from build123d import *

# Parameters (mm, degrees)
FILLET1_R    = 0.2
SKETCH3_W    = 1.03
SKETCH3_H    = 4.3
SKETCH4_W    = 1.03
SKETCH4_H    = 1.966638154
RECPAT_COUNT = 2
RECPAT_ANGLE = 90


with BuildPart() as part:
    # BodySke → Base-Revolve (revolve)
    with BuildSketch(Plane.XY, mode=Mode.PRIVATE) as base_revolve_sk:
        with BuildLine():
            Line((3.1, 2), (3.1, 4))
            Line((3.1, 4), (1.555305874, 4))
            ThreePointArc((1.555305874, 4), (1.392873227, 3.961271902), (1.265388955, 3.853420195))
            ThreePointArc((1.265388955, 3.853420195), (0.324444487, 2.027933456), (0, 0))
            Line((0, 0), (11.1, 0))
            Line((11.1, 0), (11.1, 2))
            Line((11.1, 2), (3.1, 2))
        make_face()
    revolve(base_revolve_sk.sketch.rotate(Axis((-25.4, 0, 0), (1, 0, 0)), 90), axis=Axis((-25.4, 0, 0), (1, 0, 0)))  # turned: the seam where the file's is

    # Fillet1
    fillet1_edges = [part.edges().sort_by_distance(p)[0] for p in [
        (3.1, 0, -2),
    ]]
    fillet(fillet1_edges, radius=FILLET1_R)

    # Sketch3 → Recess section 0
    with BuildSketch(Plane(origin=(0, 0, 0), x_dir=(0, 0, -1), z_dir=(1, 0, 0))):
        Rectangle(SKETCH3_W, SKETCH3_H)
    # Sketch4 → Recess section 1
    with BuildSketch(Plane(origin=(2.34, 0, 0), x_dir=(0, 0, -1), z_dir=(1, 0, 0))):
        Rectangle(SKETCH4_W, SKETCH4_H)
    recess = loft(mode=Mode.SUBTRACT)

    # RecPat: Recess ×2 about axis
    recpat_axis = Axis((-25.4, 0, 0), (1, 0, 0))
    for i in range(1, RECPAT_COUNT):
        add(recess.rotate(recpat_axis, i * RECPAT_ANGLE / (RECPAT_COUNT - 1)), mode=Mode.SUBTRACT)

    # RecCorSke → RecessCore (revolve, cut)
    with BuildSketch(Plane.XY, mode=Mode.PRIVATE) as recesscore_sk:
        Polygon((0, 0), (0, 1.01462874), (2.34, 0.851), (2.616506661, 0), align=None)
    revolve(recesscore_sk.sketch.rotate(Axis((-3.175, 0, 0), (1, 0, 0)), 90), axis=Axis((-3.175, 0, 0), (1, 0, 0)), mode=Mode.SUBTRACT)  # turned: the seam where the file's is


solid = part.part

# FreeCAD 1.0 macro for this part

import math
import FreeCAD as App
import Part
import Sketcher

V = App.Vector
Q = App.Units.Quantity


def edges_at(feature, points):
    """Names of the edges that pass closest to the given points."""
    edges = feature.Shape.Edges
    near = lambda p: min(range(len(edges)), key=lambda i: edges[i].distToShape(Part.Vertex(*p))[0])
    return sorted({f"Edge{near(p) + 1}" for p in points})

doc = App.newDocument("Part")
body = doc.addObject("PartDesign::Body", "Body")

# Sketch on XY plane
sketch1 = body.newObject("Sketcher::SketchObject", "Sketch")
sketch1.AttachmentSupport = (doc.getObject("XY_Plane"), [""])
sketch1.MapMode = "FlatFace"
sketch1.addGeometry(Part.LineSegment(V(3.1, 2, 0), V(3.1, 4, 0)), False)
sketch1.addGeometry(Part.LineSegment(V(3.1, 4, 0), V(1.56, 4, 0)), False)
sketch1.addGeometry(Part.ArcOfCircle(Part.Circle(V(1.56, 3.64, 0), V(0, 0, 1), 0.36), math.radians(90), math.radians(144)), False)
sketch1.addGeometry(Part.ArcOfCircle(Part.Circle(V(6.5, 0, 0), V(0, 0, 1), 6.5), math.radians(144), math.radians(180)), False)
sketch1.addGeometry(Part.LineSegment(V(0, 0, 0), V(11.1, 0, 0)), False)
sketch1.addGeometry(Part.LineSegment(V(11.1, 0, 0), V(11.1, 2, 0)), False)
sketch1.addGeometry(Part.LineSegment(V(11.1, 2, 0), V(3.1, 2, 0)), False)
sketch1.addConstraint(Sketcher.Constraint("Coincident", 0, 2, 1, 1))
sketch1.addConstraint(Sketcher.Constraint("Tangent", 1, 2, 2, 1))
sketch1.addConstraint(Sketcher.Constraint("Tangent", 2, 2, 3, 1))
sketch1.addConstraint(Sketcher.Constraint("Coincident", 3, 2, 4, 1))
sketch1.addConstraint(Sketcher.Constraint("Coincident", 4, 2, 5, 1))
sketch1.addConstraint(Sketcher.Constraint("Coincident", 5, 2, 6, 1))
sketch1.addConstraint(Sketcher.Constraint("Coincident", 6, 2, 0, 1))
sketch1.addConstraint(Sketcher.Constraint("Vertical", 0))
sketch1.addConstraint(Sketcher.Constraint("Horizontal", 1))
sketch1.addConstraint(Sketcher.Constraint("Horizontal", 4))
sketch1.addConstraint(Sketcher.Constraint("Vertical", 5))
sketch1.addConstraint(Sketcher.Constraint("Horizontal", 6))
sketch1.addConstraint(Sketcher.Constraint("Coincident", 3, 2, -1, 1))
sketch1.addConstraint(Sketcher.Constraint("PointOnObject", 3, 3, -1))
sketch1.addConstraint(Sketcher.Constraint("Equal", 0, 5))
sketch1.addConstraint(Sketcher.Constraint("Radius", 3, 6.5))
sketch1.addConstraint(Sketcher.Constraint("DistanceX", 6, 2, 6, 1, 8.0))
sketch1.addConstraint(Sketcher.Constraint("DistanceY", 0, 1, 0, 2, 2.0))
sketch1.addConstraint(Sketcher.Constraint("Radius", 2, 0.36))
sketch1.addConstraint(Sketcher.Constraint("DistanceX", 4, 1, 4, 2, 11.1))
revolution = body.newObject("PartDesign::Revolution", "Revolution")
revolution.Profile = sketch1
revolution.ReferenceAxis = (sketch1, ["H_Axis"])
revolution.Angle = 360
doc.recompute()

fillet = body.newObject("PartDesign::Fillet", "Fillet")
fillet.Base = (revolution, edges_at(revolution, [(3.1, 0, -2)]))
fillet.Radius = 0.2

# Sketch on YZ plane
sketch2 = body.newObject("Sketcher::SketchObject", "Sketch001")
sketch2.AttachmentSupport = (doc.getObject("YZ_Plane"), [""])
sketch2.MapMode = "FlatFace"
sketch2.addGeometry(Part.LineSegment(V(2.1, 0.5, 0), V(-2.1, 0.5, 0)), False)
sketch2.addGeometry(Part.LineSegment(V(-2.1, 0.5, 0), V(-2.1, -0.5, 0)), False)
sketch2.addGeometry(Part.LineSegment(V(-2.1, -0.5, 0), V(2.1, -0.5, 0)), False)
sketch2.addGeometry(Part.LineSegment(V(2.1, -0.5, 0), V(2.1, 0.5, 0)), False)
sketch2.addConstraint(Sketcher.Constraint("Coincident", 0, 2, 1, 1))
sketch2.addConstraint(Sketcher.Constraint("Coincident", 1, 2, 2, 1))
sketch2.addConstraint(Sketcher.Constraint("Coincident", 2, 2, 3, 1))
sketch2.addConstraint(Sketcher.Constraint("Coincident", 3, 2, 0, 1))
sketch2.addConstraint(Sketcher.Constraint("Horizontal", 0))
sketch2.addConstraint(Sketcher.Constraint("Vertical", 1))
sketch2.addConstraint(Sketcher.Constraint("Horizontal", 2))
sketch2.addConstraint(Sketcher.Constraint("Vertical", 3))
sketch2.addConstraint(Sketcher.Constraint("Symmetric", 0, 2, 2, 2, -1, 1))
sketch2.addConstraint(Sketcher.Constraint("DistanceX", 0, 2, 0, 1, 4.3))
sketch2.addConstraint(Sketcher.Constraint("DistanceY", 1, 2, 1, 1, 1.03))

# Sketch on YZ plane
sketch3 = body.newObject("Sketcher::SketchObject", "Sketch002")
sketch3.AttachmentSupport = (doc.getObject("YZ_Plane"), [""])
sketch3.MapMode = "FlatFace"
sketch3.AttachmentOffset = App.Placement(V(0, 0, 2.34), App.Rotation())
sketch3.addGeometry(Part.LineSegment(V(1, 0.5, 0), V(-1, 0.5, 0)), False)
sketch3.addGeometry(Part.LineSegment(V(-1, 0.5, 0), V(-1, -0.5, 0)), False)
sketch3.addGeometry(Part.LineSegment(V(-1, -0.5, 0), V(1, -0.5, 0)), False)
sketch3.addGeometry(Part.LineSegment(V(1, -0.5, 0), V(1, 0.5, 0)), False)
sketch3.addConstraint(Sketcher.Constraint("Coincident", 0, 2, 1, 1))
sketch3.addConstraint(Sketcher.Constraint("Coincident", 1, 2, 2, 1))
sketch3.addConstraint(Sketcher.Constraint("Coincident", 2, 2, 3, 1))
sketch3.addConstraint(Sketcher.Constraint("Coincident", 3, 2, 0, 1))
sketch3.addConstraint(Sketcher.Constraint("Horizontal", 0))
sketch3.addConstraint(Sketcher.Constraint("Vertical", 1))
sketch3.addConstraint(Sketcher.Constraint("Horizontal", 2))
sketch3.addConstraint(Sketcher.Constraint("Vertical", 3))
sketch3.addConstraint(Sketcher.Constraint("Symmetric", 0, 2, 2, 2, -1, 1))
sketch3.addConstraint(Sketcher.Constraint("DistanceY", 1, 2, 1, 1, 1.03))
sketch3.addConstraint(Sketcher.Constraint("DistanceX", 0, 2, 0, 1, 1.966638))

subtractiveloft = body.newObject("PartDesign::SubtractiveLoft", "SubtractiveLoft")
subtractiveloft.Profile = sketch2
subtractiveloft.Sections = [sketch3]
doc.recompute()

polarpattern = body.newObject("PartDesign::PolarPattern", "PolarPattern")
polarpattern.Originals = [subtractiveloft]
polarpattern.Axis = (doc.getObject("X_Axis"), [""])
polarpattern.Angle = 90
polarpattern.Occurrences = 2
body.Tip = polarpattern

# Sketch on XY plane
sketch4 = body.newObject("Sketcher::SketchObject", "Sketch003")
sketch4.AttachmentSupport = (doc.getObject("XY_Plane"), [""])
sketch4.MapMode = "FlatFace"
sketch4.addGeometry(Part.LineSegment(V(0, 1, 0), V(0, 0, 0)), False)
sketch4.addGeometry(Part.LineSegment(V(0, 0, 0), V(2.6, 0, 0)), False)
sketch4.addGeometry(Part.LineSegment(V(2.6, 0, 0), V(2.3, 0.9, 0)), False)
sketch4.addGeometry(Part.LineSegment(V(2.3, 0.9, 0), V(0, 1, 0)), False)
sketch4.addConstraint(Sketcher.Constraint("Coincident", 0, 2, 1, 1))
sketch4.addConstraint(Sketcher.Constraint("Coincident", 1, 2, 2, 1))
sketch4.addConstraint(Sketcher.Constraint("Coincident", 2, 2, 3, 1))
sketch4.addConstraint(Sketcher.Constraint("Coincident", 3, 2, 0, 1))
sketch4.addConstraint(Sketcher.Constraint("Vertical", 0))
sketch4.addConstraint(Sketcher.Constraint("Horizontal", 1))
sketch4.addConstraint(Sketcher.Constraint("Coincident", 0, 2, -1, 1))
sketch4.addConstraint(Sketcher.Constraint("Angle", 2, Q("108 deg")))
sketch4.addConstraint(Sketcher.Constraint("Angle", 3, Q("176 deg")))
sketch4.addConstraint(Sketcher.Constraint("DistanceX", -1, 1, 2, 2, 2.34))
sketch4.addConstraint(Sketcher.Constraint("DistanceY", -1, 1, 2, 2, 0.851))
groove = body.newObject("PartDesign::Groove", "Groove")
groove.Profile = sketch4
groove.ReferenceAxis = (sketch4, ["H_Axis"])
groove.Angle = 360

doc.recompute()
